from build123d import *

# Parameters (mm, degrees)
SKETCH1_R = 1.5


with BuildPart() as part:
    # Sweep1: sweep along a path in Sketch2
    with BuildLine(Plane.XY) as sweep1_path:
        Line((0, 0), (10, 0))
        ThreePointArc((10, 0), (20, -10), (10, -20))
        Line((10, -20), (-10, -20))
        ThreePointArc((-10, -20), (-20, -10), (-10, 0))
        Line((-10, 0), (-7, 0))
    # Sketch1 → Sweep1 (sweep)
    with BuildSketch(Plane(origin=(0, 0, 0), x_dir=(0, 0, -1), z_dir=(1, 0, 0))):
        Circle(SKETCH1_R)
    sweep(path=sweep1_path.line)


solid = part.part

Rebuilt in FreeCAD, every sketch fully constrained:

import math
import FreeCAD as App
import Part
import Sketcher

doc = App.newDocument("Part")
body = doc.addObject("PartDesign::Body", "Body")

# Sketch on YZ plane
sketch1 = body.newObject("Sketcher::SketchObject", "Sketch")
sketch1.AttachmentSupport = (doc.getObject("YZ_Plane"), [""])
sketch1.MapMode = "FlatFace"
sketch1.addGeometry(Part.Circle(App.Vector(0, 0, 0), App.Vector(0, 0, 1), 1.5), False)
sketch1.addConstraint(Sketcher.Constraint("Coincident", 0, 3, -1, 1))
sketch1.addConstraint(Sketcher.Constraint("Diameter", 0, 3.0))

# Sketch on XY plane
sketch2 = body.newObject("Sketcher::SketchObject", "Sketch001")
sketch2.AttachmentSupport = (doc.getObject("XY_Plane"), [""])
sketch2.MapMode = "FlatFace"
sketch2.addGeometry(Part.LineSegment(App.Vector(0, 0, 0), App.Vector(10, 0, 0)), False)
sketch2.addGeometry(Part.ArcOfCircle(Part.Circle(App.Vector(10, -10, 0), App.Vector(0, 0, 1), 10), math.radians(-90), math.radians(90)), False)
sketch2.addGeometry(Part.LineSegment(App.Vector(10, -20, 0), App.Vector(-10, -20, 0)), False)
sketch2.addGeometry(Part.ArcOfCircle(Part.Circle(App.Vector(-10, -10, 0), App.Vector(0, 0, 1), 10), math.radians(90), math.radians(270)), False)
sketch2.addGeometry(Part.LineSegment(App.Vector(-10, 0, 0), App.Vector(-7, 0, 0)), False)
sketch2.addConstraint(Sketcher.Constraint("Tangent", 0, 2, 1, 2))
sketch2.addConstraint(Sketcher.Constraint("Tangent", 1, 1, 2, 1))
sketch2.addConstraint(Sketcher.Constraint("Tangent", 2, 2, 3, 2))
sketch2.addConstraint(Sketcher.Constraint("Tangent", 3, 1, 4, 1))
sketch2.addConstraint(Sketcher.Constraint("Horizontal", 0))
sketch2.addConstraint(Sketcher.Constraint("Horizontal", 2))
sketch2.addConstraint(Sketcher.Constraint("Horizontal", 4))
sketch2.addConstraint(Sketcher.Constraint("Coincident", 0, 1, -1, 1))
sketch2.addConstraint(Sketcher.Constraint("Equal", 1, 3))
sketch2.addConstraint(Sketcher.Constraint("Radius", 1, 10.0))
sketch2.addConstraint(Sketcher.Constraint("DistanceX", 0, 1, 0, 2, 10.0))
sketch2.addConstraint(Sketcher.Constraint("DistanceX", 2, 2, 2, 1, 20.0))
sketch2.addConstraint(Sketcher.Constraint("DistanceX", 4, 1, 4, 2, 3.0))
doc.recompute()

additivepipe = body.newObject("PartDesign::AdditivePipe", "AdditivePipe")
additivepipe.Profile = sketch1
additivepipe.Spine = (sketch2, ["Edge1", "Edge2", "Edge3", "Edge4", "Edge5"])

doc.recompute()
